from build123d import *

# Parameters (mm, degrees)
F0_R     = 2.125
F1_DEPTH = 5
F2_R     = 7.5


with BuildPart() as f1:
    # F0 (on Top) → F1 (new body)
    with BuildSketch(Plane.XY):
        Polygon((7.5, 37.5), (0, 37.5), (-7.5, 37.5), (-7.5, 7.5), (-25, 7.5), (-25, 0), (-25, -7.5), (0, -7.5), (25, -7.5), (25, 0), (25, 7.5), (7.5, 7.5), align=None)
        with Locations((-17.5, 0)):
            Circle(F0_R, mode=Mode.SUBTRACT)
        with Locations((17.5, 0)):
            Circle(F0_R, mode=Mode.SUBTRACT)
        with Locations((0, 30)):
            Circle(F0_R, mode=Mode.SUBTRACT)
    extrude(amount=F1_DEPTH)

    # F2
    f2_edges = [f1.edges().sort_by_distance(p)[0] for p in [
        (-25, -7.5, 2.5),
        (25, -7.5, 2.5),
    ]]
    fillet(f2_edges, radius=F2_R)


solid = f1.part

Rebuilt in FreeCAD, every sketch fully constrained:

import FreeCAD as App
import Part
import Sketcher
from FreeCAD import Vector
Q = App.Units.Quantity


def edges_at(feature, points):
    """Names of the edges that pass closest to the given points."""
    edges = feature.Shape.Edges
    near = lambda p: min(range(len(edges)), key=lambda i: edges[i].distToShape(Part.Vertex(*p))[0])
    return sorted({f"Edge{near(p) + 1}" for p in points})

doc = App.newDocument("Part")
body = doc.addObject("PartDesign::Body", "Body")

sketch1 = doc.addObject("Sketcher::SketchObject", "Sketch")
body.addObject(sketch1)
sketch1.AttachmentSupport = (doc.XY_Plane, [""])
sketch1.MapMode = "FlatFace"
sketch1.addGeometry(Part.LineSegment(Vector(7.5, 37.5, 0), Vector(-7.5, 37.5, 0)), False)
sketch1.addGeometry(Part.LineSegment(Vector(-7.5, 37.5, 0), Vector(-7.5, 7.5, 0)), False)
sketch1.addGeometry(Part.LineSegment(Vector(-7.5, 7.5, 0), Vector(-25, 7.5, 0)), False)
sketch1.addGeometry(Part.LineSegment(Vector(-25, 7.5, 0), Vector(-25, -7.5, 0)), False)
sketch1.addGeometry(Part.LineSegment(Vector(-25, -7.5, 0), Vector(25, -7.5, 0)), False)
sketch1.addGeometry(Part.LineSegment(Vector(25, -7.5, 0), Vector(25, 7.5, 0)), False)
sketch1.addGeometry(Part.LineSegment(Vector(25, 7.5, 0), Vector(7.5, 7.5, 0)), False)
sketch1.addGeometry(Part.LineSegment(Vector(7.5, 7.5, 0), Vector(7.5, 37.5, 0)), False)
sketch1.addGeometry(Part.Circle(Vector(-17.5, 0, 0), Vector(0, 0, 1), 2.1), False)
sketch1.addGeometry(Part.Circle(Vector(17.5, 0, 0), Vector(0, 0, 1), 2.1), False)
sketch1.addGeometry(Part.Circle(Vector(0, 30, 0), Vector(0, 0, 1), 2.1), False)
sketch1.addConstraint(Sketcher.Constraint("Coincident", 0, 2, 1, 1))
sketch1.addConstraint(Sketcher.Constraint("Coincident", 1, 2, 2, 1))
sketch1.addConstraint(Sketcher.Constraint("Coincident", 2, 2, 3, 1))
sketch1.addConstraint(Sketcher.Constraint("Coincident", 3, 2, 4, 1))
sketch1.addConstraint(Sketcher.Constraint("Coincident", 4, 2, 5, 1))
sketch1.addConstraint(Sketcher.Constraint("Coincident", 5, 2, 6, 1))
sketch1.addConstraint(Sketcher.Constraint("Coincident", 6, 2, 7, 1))
sketch1.addConstraint(Sketcher.Constraint("Coincident", 7, 2, 0, 1))
sketch1.addConstraint(Sketcher.Constraint("Horizontal", 0))
sketch1.addConstraint(Sketcher.Constraint("Vertical", 1))
sketch1.addConstraint(Sketcher.Constraint("Horizontal", 2))
sketch1.addConstraint(Sketcher.Constraint("Vertical", 3))
sketch1.addConstraint(Sketcher.Constraint("Horizontal", 4))
sketch1.addConstraint(Sketcher.Constraint("Vertical", 5))
sketch1.addConstraint(Sketcher.Constraint("Horizontal", 6))
sketch1.addConstraint(Sketcher.Constraint("Vertical", 7))
sketch1.addConstraint(Sketcher.Constraint("Equal", 8, 9))
sketch1.addConstraint(Sketcher.Constraint("Equal", 9, 10))
sketch1.addConstraint(Sketcher.Constraint("Symmetric", 8, 3, 9, 3, -1, 1))
sketch1.addConstraint(Sketcher.Constraint("Symmetric", 2, 2, 4, 2, -1, 1))
sketch1.addConstraint(Sketcher.Constraint("Symmetric", 1, 2, 6, 2, -2))
sketch1.addConstraint(Sketcher.Constraint("PointOnObject", 8, 3, -1))
sketch1.addConstraint(Sketcher.Constraint("PointOnObject", 10, 3, -2))
sketch1.addConstraint(Sketcher.Constraint("Equal", 0, 3))
sketch1.addConstraint(Sketcher.Constraint("Diameter", 8, Q("4.25 mm")))
sketch1.addConstraint(Sketcher.Constraint("DistanceX", 0, 2, 0, 1, Q("15 mm")))
sketch1.addConstraint(Sketcher.Constraint("DistanceX", 4, 1, 4, 2, Q("50 mm")))
sketch1.addConstraint(Sketcher.Constraint("DistanceY", 1, 2, 1, 1, Q("30 mm")))
sketch1.addConstraint(Sketcher.Constraint("DistanceY", -1, 1, 10, 3, Q("30 mm")))
sketch1.addConstraint(Sketcher.Constraint("DistanceX", 8, 3, 9, 3, Q("35 mm")))
pad1 = doc.addObject("PartDesign::Pad", "Pad")
body.addObject(pad1)
pad1.Profile = sketch1
pad1.Length = 5
doc.recompute()

fillet = doc.addObject("PartDesign::Fillet", "Fillet")
body.addObject(fillet)
fillet.Base = (pad1, edges_at(pad1, [(-25, -7.5, 2.5), (25, -7.5, 2.5)]))
fillet.Radius = 7.5

doc.recompute()
